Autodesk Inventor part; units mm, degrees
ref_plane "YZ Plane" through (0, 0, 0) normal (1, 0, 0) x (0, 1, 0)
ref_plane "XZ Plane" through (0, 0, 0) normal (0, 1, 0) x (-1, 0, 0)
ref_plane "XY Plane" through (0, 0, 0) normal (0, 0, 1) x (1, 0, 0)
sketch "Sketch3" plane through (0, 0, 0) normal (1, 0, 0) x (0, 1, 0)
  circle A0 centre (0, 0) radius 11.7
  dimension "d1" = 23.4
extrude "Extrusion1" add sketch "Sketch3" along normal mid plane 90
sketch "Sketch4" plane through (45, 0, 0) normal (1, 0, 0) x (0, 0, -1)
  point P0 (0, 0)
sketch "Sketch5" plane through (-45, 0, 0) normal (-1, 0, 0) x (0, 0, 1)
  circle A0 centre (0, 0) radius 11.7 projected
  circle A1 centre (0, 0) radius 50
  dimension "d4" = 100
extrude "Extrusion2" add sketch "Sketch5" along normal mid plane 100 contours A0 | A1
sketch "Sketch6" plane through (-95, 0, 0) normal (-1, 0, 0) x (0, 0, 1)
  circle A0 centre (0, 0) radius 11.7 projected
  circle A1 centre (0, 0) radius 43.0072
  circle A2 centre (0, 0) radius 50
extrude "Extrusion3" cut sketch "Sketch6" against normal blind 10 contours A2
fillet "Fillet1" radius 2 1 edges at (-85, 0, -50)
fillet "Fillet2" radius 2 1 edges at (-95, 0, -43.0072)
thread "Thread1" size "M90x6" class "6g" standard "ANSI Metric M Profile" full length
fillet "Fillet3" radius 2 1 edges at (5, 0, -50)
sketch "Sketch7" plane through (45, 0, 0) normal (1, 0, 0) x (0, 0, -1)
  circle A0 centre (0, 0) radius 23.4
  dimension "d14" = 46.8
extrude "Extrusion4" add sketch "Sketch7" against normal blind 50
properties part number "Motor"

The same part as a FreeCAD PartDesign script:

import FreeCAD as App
import Part
import Sketcher

V = App.Vector
Q = App.Units.Quantity


def edges_at(feature, points):
    """Names of the edges that pass closest to the given points."""
    edges = feature.Shape.Edges
    near = lambda p: min(range(len(edges)), key=lambda i: edges[i].distToShape(Part.Vertex(*p))[0])
    return sorted({f"Edge{near(p) + 1}" for p in points})

doc = App.newDocument("Part")
params = doc.addObject("Spreadsheet::Sheet", "Params")
for row, (alias, value) in enumerate([
    ("sketch1_diameter", "23.4 mm"),
    ("pad1_length", "90 mm"),
    ("sketch2_diameter", "100 mm"),
    ("pad2_length", "100 mm"),
    ("sketch3_diameter", "100 mm"),
    ("pocket1_length", "10 mm"),
    ("fillet_radius", "2 mm"),
    ("fillet2_radius", "2 mm"),
    ("fillet3_radius", "2 mm"),
    ("sketch4_diameter", "46.8 mm"),
    ("pad3_length", "50 mm"),
], start=1):
    params.set(f"A{row}", alias)
    params.set(f"B{row}", "=" + value)
    params.setAlias(f"B{row}", alias)

body = doc.addObject("PartDesign::Body", "Body")

sketch1 = doc.addObject("Sketcher::SketchObject", "Sketch")
body.addObject(sketch1)
sketch1.AttachmentSupport = (doc.YZ_Plane, [""])
sketch1.MapMode = "FlatFace"
sketch1.addGeometry(Part.Circle(V(0, 0, 0), V(0, 0, 1), 12), False)
sketch1.addConstraint([
    Sketcher.Constraint("Coincident", 0, 3, -1, 1),
    Sketcher.Constraint("Diameter", 0, Q("23.4 mm")),
])
sketch1.setExpression("Constraints[1]", "Params.sketch1_diameter")
pad1 = doc.addObject("PartDesign::Pad", "Pad")
body.addObject(pad1)
pad1.Profile = sketch1
pad1.setExpression("Length", "Params.pad1_length")
pad1.Midplane = True

sketch2 = doc.addObject("Sketcher::SketchObject", "Sketch001")
body.addObject(sketch2)
sketch2.AttachmentSupport = (doc.YZ_Plane, [""])
sketch2.MapMode = "FlatFace"
sketch2.AttachmentOffset = App.Placement(V(0, 0, -45), App.Rotation())
sketch2.addGeometry(Part.Circle(V(0, 0, 0), V(0, 0, 1), 50), False)
sketch2.addConstraint([
    Sketcher.Constraint("Coincident", 0, 3, -1, 1),
    Sketcher.Constraint("Diameter", 0, Q("100 mm")),
])
sketch2.setExpression("Constraints[1]", "Params.sketch2_diameter")
pad2 = doc.addObject("PartDesign::Pad", "Pad001")
body.addObject(pad2)
pad2.Profile = sketch2
pad2.setExpression("Length", "Params.pad2_length")
pad2.Midplane = True

sketch3 = doc.addObject("Sketcher::SketchObject", "Sketch002")
body.addObject(sketch3)
sketch3.AttachmentSupport = (doc.YZ_Plane, [""])
sketch3.MapMode = "FlatFace"
sketch3.AttachmentOffset = App.Placement(V(0, 0, -95), App.Rotation())
sketch3.addGeometry([
    Part.Circle(V(0, 0, 0), V(0, 0, 1), 50),
    Part.Circle(V(0, 0, 0), V(0, 0, 1), 43),
], False)
sketch3.addConstraint([
    Sketcher.Constraint("Coincident", 0, 3, -1, 1),
    Sketcher.Constraint("Coincident", 1, 3, -1, 1),
    Sketcher.Constraint("Diameter", 0, Q("100 mm")),
    Sketcher.Constraint("Diameter", 1, Q("86.0144 mm")),
])
sketch3.setExpression("Constraints[2]", "Params.sketch3_diameter")
pocket1 = doc.addObject("PartDesign::Pocket", "Pocket")
body.addObject(pocket1)
pocket1.Profile = sketch3
pocket1.setExpression("Length", "Params.pocket1_length")
pocket1.Reversed = True
doc.recompute()

fillet = doc.addObject("PartDesign::Fillet", "Fillet")
body.addObject(fillet)
fillet.Base = (pocket1, edges_at(pocket1, [(-85, 0, -50)]))
fillet.setExpression("Radius", "Params.fillet_radius")
doc.recompute()

fillet2 = doc.addObject("PartDesign::Fillet", "Fillet001")
body.addObject(fillet2)
fillet2.Base = (fillet, edges_at(fillet, [(-95, 0, -43.007)]))
fillet2.setExpression("Radius", "Params.fillet2_radius")
doc.recompute()

fillet3 = doc.addObject("PartDesign::Fillet", "Fillet002")
body.addObject(fillet3)
fillet3.Base = (fillet2, edges_at(fillet2, [(5, 0, -50)]))
fillet3.setExpression("Radius", "Params.fillet3_radius")

sketch4 = doc.addObject("Sketcher::SketchObject", "Sketch003")
body.addObject(sketch4)
sketch4.AttachmentSupport = (doc.YZ_Plane, [""])
sketch4.MapMode = "FlatFace"
sketch4.AttachmentOffset = App.Placement(V(0, 0, 45), App.Rotation())
sketch4.addGeometry(Part.Circle(V(0, 0, 0), V(0, 0, 1), 23), False)
sketch4.addConstraint([
    Sketcher.Constraint("Coincident", 0, 3, -1, 1),
    Sketcher.Constraint("Diameter", 0, Q("46.8 mm")),
])
sketch4.setExpression("Constraints[1]", "Params.sketch4_diameter")
pad3 = doc.addObject("PartDesign::Pad", "Pad002")
body.addObject(pad3)
pad3.Profile = sketch4
pad3.setExpression("Length", "Params.pad3_length")
pad3.Reversed = True

doc.recompute()
